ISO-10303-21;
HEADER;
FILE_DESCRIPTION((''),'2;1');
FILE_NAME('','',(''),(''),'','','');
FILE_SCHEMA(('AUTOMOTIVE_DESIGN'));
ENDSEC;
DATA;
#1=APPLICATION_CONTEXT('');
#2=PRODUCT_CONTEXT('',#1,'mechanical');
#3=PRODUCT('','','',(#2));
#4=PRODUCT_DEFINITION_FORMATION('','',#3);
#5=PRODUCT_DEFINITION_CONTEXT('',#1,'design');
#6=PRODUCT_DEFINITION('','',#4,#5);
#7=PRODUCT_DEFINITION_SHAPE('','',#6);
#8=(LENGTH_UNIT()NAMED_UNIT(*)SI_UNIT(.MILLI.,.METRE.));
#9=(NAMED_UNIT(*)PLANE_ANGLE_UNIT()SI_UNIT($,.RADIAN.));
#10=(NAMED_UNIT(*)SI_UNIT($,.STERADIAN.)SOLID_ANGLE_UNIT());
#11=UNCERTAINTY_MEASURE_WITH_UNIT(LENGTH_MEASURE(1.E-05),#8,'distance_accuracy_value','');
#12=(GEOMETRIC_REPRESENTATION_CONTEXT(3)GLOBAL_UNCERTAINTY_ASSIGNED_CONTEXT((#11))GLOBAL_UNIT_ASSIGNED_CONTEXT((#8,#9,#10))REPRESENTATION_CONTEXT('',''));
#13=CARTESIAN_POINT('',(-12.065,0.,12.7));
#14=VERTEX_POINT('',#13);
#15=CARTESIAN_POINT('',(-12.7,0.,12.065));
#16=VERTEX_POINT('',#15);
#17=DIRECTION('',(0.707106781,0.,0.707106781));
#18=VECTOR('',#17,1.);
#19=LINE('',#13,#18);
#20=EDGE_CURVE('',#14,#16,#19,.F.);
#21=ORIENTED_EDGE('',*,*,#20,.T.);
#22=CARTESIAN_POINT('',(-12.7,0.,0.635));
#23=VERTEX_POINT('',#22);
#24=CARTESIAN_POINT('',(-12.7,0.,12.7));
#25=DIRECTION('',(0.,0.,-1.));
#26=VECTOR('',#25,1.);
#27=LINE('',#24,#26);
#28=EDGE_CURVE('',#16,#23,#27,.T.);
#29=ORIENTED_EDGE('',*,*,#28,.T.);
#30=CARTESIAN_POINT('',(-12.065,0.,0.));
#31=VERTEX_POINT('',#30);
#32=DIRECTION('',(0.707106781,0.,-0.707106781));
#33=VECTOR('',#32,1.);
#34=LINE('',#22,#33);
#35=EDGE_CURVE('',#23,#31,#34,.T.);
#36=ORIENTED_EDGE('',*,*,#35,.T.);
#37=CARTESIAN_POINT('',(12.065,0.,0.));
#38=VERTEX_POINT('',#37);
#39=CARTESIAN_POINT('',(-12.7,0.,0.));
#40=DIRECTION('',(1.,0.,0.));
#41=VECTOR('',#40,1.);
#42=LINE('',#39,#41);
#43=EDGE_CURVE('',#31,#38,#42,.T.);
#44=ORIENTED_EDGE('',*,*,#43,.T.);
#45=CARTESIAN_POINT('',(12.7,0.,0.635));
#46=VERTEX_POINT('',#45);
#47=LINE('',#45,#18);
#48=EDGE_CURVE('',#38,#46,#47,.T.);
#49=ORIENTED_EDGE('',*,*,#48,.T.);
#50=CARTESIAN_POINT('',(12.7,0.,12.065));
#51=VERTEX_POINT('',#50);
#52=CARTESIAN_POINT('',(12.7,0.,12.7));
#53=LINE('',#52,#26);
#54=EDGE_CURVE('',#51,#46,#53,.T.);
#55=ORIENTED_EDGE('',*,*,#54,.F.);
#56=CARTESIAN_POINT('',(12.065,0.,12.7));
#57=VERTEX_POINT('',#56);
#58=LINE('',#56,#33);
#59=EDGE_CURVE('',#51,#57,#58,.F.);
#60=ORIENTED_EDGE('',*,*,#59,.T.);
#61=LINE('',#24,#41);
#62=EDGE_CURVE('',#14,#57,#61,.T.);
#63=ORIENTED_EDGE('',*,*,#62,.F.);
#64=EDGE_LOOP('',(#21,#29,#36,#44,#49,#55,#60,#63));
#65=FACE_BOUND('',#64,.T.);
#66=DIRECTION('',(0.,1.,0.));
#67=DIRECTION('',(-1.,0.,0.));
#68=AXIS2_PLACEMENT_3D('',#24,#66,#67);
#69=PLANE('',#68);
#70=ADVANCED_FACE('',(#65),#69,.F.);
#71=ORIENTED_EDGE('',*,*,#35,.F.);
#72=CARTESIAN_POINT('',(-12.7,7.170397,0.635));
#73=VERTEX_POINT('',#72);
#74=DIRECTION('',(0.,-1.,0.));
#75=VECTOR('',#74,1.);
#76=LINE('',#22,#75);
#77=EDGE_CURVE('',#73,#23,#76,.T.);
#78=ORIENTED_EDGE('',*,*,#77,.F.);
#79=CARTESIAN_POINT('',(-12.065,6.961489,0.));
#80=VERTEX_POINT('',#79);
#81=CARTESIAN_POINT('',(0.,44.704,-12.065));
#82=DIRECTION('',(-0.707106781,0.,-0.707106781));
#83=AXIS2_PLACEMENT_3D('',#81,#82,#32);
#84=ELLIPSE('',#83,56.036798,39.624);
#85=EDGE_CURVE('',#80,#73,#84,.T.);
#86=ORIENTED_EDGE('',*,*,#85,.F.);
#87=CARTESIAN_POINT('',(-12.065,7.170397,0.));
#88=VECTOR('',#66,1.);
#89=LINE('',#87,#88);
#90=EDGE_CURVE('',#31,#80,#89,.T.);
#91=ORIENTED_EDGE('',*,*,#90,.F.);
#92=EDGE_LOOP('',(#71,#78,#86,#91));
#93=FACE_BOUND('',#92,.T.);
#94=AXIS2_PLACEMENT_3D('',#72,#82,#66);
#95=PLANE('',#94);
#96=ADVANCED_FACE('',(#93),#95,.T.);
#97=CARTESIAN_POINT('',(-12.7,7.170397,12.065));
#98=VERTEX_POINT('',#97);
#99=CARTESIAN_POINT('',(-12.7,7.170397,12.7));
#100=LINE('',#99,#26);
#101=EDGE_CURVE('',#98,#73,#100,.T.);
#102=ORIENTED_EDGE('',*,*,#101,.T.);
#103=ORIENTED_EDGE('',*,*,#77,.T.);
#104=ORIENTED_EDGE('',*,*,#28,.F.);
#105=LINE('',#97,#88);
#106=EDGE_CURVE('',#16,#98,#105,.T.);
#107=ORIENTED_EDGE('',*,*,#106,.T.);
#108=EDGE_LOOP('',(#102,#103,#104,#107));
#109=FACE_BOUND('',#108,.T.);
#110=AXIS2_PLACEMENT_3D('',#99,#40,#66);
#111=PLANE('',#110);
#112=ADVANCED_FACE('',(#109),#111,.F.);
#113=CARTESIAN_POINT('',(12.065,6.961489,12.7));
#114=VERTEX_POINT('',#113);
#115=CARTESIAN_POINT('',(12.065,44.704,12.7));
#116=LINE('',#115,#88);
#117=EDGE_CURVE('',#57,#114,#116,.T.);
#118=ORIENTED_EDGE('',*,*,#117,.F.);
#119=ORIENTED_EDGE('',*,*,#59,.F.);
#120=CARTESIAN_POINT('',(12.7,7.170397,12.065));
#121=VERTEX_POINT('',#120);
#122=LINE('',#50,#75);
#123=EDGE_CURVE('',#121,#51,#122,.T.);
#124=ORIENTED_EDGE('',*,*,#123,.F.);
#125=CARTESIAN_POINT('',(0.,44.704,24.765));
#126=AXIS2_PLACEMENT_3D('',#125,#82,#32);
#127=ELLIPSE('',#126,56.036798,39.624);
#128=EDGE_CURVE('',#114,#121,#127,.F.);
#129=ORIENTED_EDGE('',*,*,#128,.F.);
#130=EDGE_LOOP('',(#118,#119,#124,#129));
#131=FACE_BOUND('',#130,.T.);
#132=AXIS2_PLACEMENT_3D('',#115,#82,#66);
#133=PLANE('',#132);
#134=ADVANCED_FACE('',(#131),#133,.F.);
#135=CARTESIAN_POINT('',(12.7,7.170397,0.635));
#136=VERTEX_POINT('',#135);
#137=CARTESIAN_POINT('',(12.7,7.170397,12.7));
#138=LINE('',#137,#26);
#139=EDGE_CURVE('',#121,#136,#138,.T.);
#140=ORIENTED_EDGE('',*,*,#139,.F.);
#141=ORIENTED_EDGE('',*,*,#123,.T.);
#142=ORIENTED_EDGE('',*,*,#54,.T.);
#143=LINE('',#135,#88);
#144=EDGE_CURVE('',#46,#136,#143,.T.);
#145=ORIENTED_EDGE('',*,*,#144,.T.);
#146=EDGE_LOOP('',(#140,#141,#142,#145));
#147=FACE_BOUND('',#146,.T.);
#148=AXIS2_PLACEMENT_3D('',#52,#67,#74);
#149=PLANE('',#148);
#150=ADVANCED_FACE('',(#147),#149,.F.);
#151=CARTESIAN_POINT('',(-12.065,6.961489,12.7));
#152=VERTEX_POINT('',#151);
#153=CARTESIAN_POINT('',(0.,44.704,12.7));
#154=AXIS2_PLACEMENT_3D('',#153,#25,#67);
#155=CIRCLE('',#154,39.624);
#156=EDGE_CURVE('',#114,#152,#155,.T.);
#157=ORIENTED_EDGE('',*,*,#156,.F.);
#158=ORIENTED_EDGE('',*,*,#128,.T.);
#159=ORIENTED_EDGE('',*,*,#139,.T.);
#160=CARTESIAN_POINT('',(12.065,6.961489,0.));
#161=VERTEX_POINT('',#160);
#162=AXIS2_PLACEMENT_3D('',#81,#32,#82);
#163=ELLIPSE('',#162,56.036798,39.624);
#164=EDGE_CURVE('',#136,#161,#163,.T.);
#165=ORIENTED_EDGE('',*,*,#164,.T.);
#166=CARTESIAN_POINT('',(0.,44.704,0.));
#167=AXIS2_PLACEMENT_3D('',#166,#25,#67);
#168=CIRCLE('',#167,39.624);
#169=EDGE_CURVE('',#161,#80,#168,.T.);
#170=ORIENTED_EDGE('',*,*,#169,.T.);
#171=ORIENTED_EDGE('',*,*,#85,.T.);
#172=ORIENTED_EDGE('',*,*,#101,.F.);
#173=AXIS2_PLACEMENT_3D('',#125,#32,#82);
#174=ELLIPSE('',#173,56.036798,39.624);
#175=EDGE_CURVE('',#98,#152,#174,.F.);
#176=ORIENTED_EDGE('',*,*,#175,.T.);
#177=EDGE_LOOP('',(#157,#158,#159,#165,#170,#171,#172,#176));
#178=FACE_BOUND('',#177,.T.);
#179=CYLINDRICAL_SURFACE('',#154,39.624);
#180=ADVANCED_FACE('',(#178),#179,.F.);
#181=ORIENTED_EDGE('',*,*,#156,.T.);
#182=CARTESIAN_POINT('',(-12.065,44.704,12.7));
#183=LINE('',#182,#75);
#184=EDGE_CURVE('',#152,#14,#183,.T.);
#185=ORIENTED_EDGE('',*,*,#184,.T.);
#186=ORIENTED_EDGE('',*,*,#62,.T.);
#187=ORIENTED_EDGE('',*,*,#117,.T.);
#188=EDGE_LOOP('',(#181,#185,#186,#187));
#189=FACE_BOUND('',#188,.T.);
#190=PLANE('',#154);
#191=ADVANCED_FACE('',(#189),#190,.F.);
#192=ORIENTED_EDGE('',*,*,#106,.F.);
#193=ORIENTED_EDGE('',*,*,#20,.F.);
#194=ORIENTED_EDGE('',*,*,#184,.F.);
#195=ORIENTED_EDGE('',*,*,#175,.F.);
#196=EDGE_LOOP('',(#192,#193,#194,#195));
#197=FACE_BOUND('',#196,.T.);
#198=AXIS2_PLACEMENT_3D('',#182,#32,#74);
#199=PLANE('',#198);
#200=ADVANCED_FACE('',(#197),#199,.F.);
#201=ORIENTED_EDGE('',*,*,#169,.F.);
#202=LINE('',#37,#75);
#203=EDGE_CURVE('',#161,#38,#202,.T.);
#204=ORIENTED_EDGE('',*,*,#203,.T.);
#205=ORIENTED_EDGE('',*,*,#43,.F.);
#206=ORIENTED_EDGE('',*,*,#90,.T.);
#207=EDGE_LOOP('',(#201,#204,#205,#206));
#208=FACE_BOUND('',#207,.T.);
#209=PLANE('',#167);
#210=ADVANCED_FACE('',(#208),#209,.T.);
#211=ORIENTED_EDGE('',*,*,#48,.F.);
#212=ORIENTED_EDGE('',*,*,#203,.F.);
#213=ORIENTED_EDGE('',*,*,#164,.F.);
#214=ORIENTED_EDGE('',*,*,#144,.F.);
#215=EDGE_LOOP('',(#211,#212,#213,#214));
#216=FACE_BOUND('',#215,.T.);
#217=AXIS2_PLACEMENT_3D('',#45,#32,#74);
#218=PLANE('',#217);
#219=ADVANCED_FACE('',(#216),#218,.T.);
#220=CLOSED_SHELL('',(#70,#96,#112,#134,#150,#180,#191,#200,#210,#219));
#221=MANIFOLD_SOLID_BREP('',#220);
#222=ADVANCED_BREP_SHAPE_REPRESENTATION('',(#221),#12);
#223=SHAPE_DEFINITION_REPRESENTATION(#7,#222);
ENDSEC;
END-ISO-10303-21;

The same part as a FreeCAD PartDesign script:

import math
import FreeCAD as App
import Part
import Sketcher
Q = App.Units.Quantity


def edges_at(feature, points):
    """Names of the edges that pass closest to the given points."""
    edges = feature.Shape.Edges
    near = lambda p: min(range(len(edges)), key=lambda i: edges[i].distToShape(Part.Vertex(*p))[0])
    return sorted({f"Edge{near(p) + 1}" for p in points})

doc = App.newDocument("Part")
body = doc.addObject("PartDesign::Body", "Body")

# Sketch on XY plane
sketch1 = body.newObject("Sketcher::SketchObject", "Sketch")
sketch1.AttachmentSupport = (doc.getObject("XY_Plane"), [""])
sketch1.MapMode = "FlatFace"
sketch1.addGeometry(Part.LineSegment(App.Vector(-13, 7, 0), App.Vector(-13, 0, 0)), False)
sketch1.addGeometry(Part.LineSegment(App.Vector(-13, 0, 0), App.Vector(13, 0, 0)), False)
sketch1.addGeometry(Part.LineSegment(App.Vector(13, 0, 0), App.Vector(13, 7, 0)), False)
sketch1.addGeometry(Part.ArcOfCircle(Part.Circle(App.Vector(0, 45, 0), App.Vector(0, 0, 1), 40), math.radians(-109), math.radians(-71)), False)
sketch1.addConstraint(Sketcher.Constraint("Coincident", 0, 2, 1, 1))
sketch1.addConstraint(Sketcher.Constraint("Coincident", 1, 2, 2, 1))
sketch1.addConstraint(Sketcher.Constraint("Coincident", 2, 2, 3, 2))
sketch1.addConstraint(Sketcher.Constraint("Coincident", 3, 1, 0, 1))
sketch1.addConstraint(Sketcher.Constraint("Vertical", 0))
sketch1.addConstraint(Sketcher.Constraint("Horizontal", 1))
sketch1.addConstraint(Sketcher.Constraint("Vertical", 2))
sketch1.addConstraint(Sketcher.Constraint("Symmetric", 0, 2, 1, 2, -1, 1))
sketch1.addConstraint(Sketcher.Constraint("PointOnObject", 3, 3, -2))
sketch1.addConstraint(Sketcher.Constraint("DistanceX", 1, 1, 1, 2, Q("1 in")))
sketch1.addConstraint(Sketcher.Constraint("Radius", 3, Q("1.56 in")))
sketch1.addConstraint(Sketcher.Constraint("DistanceY", -1, 1, 3, 3, Q("1.76 in")))
pad1 = body.newObject("PartDesign::Pad", "Pad")
pad1.Profile = sketch1
pad1.Length = Q("0.5 in")
doc.recompute()

chamfer = body.newObject("PartDesign::Chamfer", "Chamfer")
chamfer.Base = (pad1, edges_at(pad1, [
    (12.7, 3.585, 12.7),
    (12.7, 3.585, 0),
    (-12.7, 3.585, 0),
    (-12.7, 3.585, 12.7),
]))
chamfer.Size = Q("0.025 in")

doc.recompute()
